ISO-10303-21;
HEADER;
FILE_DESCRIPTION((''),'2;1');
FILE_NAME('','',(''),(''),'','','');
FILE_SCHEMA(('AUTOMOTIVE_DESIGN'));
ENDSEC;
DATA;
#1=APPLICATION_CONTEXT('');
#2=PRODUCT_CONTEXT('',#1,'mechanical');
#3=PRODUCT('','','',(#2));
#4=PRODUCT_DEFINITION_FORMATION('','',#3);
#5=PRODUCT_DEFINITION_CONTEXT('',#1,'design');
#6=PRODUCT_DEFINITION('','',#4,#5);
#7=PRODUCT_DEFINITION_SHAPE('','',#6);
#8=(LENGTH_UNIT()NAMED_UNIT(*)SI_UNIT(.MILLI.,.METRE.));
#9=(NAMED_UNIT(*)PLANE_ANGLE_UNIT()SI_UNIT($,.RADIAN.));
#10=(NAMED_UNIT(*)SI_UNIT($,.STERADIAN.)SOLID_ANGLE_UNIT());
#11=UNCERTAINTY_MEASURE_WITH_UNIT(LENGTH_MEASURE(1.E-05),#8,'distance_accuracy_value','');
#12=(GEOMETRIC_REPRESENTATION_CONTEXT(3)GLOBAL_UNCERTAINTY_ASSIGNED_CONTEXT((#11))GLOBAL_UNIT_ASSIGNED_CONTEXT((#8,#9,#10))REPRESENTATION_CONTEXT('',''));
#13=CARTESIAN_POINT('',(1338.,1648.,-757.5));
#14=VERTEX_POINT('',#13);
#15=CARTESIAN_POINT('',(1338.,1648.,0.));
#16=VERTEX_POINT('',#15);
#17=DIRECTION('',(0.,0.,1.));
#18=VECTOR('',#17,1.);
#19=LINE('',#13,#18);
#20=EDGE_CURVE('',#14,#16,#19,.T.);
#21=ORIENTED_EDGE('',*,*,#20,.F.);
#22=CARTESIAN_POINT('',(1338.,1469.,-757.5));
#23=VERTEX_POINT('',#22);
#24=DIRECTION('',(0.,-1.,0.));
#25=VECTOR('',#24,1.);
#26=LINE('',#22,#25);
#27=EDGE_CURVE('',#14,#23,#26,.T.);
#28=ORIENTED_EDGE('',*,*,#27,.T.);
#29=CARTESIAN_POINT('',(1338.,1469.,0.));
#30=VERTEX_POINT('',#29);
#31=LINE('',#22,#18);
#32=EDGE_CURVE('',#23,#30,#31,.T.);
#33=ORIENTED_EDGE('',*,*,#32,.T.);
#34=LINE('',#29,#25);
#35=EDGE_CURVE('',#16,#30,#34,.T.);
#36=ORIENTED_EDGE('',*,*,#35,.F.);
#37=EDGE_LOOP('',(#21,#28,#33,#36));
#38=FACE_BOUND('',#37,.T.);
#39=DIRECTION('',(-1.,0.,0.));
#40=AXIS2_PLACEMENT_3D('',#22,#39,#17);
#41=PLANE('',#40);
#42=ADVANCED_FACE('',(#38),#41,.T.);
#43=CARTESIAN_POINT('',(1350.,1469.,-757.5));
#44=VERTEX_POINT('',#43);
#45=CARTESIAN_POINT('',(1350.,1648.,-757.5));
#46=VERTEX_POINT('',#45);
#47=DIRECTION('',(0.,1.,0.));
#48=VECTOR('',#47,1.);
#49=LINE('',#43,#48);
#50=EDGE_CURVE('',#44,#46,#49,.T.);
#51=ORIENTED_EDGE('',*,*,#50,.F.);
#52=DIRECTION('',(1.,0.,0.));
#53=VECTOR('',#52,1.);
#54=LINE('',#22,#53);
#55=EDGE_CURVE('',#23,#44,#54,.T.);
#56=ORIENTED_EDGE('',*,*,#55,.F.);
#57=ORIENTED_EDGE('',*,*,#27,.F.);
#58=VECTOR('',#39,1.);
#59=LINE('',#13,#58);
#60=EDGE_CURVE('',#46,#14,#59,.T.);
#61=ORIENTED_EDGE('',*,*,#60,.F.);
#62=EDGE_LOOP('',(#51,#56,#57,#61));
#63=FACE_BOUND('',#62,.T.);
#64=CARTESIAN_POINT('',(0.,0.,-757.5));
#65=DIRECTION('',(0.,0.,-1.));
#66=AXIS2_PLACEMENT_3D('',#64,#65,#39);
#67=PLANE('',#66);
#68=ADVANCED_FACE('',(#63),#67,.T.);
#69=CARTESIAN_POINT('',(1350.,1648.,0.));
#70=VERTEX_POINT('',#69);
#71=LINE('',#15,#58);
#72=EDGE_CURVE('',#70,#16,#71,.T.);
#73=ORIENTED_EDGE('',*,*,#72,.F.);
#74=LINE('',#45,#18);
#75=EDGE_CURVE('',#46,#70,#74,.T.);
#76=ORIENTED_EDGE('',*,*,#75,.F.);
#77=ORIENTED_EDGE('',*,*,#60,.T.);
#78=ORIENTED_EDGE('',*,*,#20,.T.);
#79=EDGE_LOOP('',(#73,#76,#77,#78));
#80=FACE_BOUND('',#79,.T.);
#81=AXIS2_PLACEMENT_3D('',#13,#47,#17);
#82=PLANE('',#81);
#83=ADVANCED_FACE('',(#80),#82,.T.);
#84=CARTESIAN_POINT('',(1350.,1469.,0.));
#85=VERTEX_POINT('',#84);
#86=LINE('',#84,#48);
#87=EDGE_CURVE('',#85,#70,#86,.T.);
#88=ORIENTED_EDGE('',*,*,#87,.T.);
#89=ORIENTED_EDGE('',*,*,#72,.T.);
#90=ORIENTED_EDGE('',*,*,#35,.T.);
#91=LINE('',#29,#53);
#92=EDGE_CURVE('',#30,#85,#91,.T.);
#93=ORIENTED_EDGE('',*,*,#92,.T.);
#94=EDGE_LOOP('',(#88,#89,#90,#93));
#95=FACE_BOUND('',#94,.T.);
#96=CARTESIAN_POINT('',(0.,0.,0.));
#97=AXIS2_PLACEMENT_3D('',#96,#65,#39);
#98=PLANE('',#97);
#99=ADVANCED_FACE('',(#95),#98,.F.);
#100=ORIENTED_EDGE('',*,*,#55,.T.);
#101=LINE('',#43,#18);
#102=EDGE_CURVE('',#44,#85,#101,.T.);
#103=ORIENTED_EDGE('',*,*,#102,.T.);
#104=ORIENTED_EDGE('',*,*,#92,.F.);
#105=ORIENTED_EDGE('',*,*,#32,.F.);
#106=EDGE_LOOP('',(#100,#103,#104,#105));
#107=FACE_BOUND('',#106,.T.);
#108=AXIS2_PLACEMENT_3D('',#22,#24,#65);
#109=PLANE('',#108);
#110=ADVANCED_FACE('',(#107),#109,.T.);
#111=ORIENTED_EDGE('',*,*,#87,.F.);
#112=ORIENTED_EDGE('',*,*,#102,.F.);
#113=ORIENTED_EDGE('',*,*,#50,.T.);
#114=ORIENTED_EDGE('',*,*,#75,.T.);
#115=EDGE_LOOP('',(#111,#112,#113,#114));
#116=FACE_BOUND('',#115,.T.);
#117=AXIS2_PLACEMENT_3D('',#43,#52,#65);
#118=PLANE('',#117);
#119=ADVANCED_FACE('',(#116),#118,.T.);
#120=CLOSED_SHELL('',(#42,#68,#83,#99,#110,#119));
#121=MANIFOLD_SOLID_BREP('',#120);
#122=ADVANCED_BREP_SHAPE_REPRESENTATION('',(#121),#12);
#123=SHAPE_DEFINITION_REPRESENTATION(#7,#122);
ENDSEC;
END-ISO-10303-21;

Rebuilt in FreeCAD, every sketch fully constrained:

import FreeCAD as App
import Part
import Sketcher
from FreeCAD import Vector
Q = App.Units.Quantity

doc = App.newDocument("Part")
body = doc.addObject("PartDesign::Body", "Body")

# Sketch on XY plane
sketch1 = body.newObject("Sketcher::SketchObject", "Sketch")
sketch1.AttachmentSupport = (doc.getObject("XY_Plane"), [""])
sketch1.MapMode = "FlatFace"
sketch1.addGeometry(Part.LineSegment(Vector(1338, 1648, 0), Vector(1338, 1469, 0)), False)
sketch1.addGeometry(Part.LineSegment(Vector(1338, 1469, 0), Vector(1350, 1469, 0)), False)
sketch1.addGeometry(Part.LineSegment(Vector(1350, 1469, 0), Vector(1350, 1648, 0)), False)
sketch1.addGeometry(Part.LineSegment(Vector(1350, 1648, 0), Vector(1338, 1648, 0)), False)
sketch1.addConstraint(Sketcher.Constraint("Coincident", 0, 2, 1, 1))
sketch1.addConstraint(Sketcher.Constraint("Coincident", 1, 2, 2, 1))
sketch1.addConstraint(Sketcher.Constraint("Coincident", 2, 2, 3, 1))
sketch1.addConstraint(Sketcher.Constraint("Coincident", 3, 2, 0, 1))
sketch1.addConstraint(Sketcher.Constraint("Vertical", 0))
sketch1.addConstraint(Sketcher.Constraint("Horizontal", 1))
sketch1.addConstraint(Sketcher.Constraint("Vertical", 2))
sketch1.addConstraint(Sketcher.Constraint("Horizontal", 3))
sketch1.addConstraint(Sketcher.Constraint("DistanceX", 1, 1, 1, 2, Q("12 mm")))
sketch1.addConstraint(Sketcher.Constraint("DistanceY", 0, 2, 0, 1, Q("179 mm")))
sketch1.addConstraint(Sketcher.Constraint("DistanceX", -1, 1, 0, 2, Q("1338 mm")))
sketch1.addConstraint(Sketcher.Constraint("DistanceY", -1, 1, 0, 2, Q("1469 mm")))
pad1 = body.newObject("PartDesign::Pad", "Pad")
pad1.Profile = sketch1
pad1.Length = 757.5
pad1.Reversed = True

doc.recompute()
